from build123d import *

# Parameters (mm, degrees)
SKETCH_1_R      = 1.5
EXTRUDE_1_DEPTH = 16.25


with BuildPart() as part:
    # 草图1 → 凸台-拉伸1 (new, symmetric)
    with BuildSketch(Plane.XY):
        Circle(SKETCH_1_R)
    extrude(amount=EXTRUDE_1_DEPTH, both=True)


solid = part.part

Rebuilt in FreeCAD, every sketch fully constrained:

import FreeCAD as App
import Part
import Sketcher

V = App.Vector
Q = App.Units.Quantity

doc = App.newDocument("Part")
body = doc.addObject("PartDesign::Body", "Body")

# Sketch on XY plane
sketch1 = body.newObject("Sketcher::SketchObject", "Sketch")
sketch1.AttachmentSupport = (doc.getObject("XY_Plane"), [""])
sketch1.MapMode = "FlatFace"
sketch1.addGeometry(Part.Circle(V(0, 0, 0), V(0, 0, 1), 1.5), False)
sketch1.addConstraint([
    Sketcher.Constraint("Coincident", 0, 3, -1, 1),
    Sketcher.Constraint("Diameter", 0, Q("3 mm")),
])
pad1 = body.newObject("PartDesign::Pad", "Pad")
pad1.Profile = sketch1
pad1.Length = 32.5
pad1.Midplane = True

doc.recompute()
